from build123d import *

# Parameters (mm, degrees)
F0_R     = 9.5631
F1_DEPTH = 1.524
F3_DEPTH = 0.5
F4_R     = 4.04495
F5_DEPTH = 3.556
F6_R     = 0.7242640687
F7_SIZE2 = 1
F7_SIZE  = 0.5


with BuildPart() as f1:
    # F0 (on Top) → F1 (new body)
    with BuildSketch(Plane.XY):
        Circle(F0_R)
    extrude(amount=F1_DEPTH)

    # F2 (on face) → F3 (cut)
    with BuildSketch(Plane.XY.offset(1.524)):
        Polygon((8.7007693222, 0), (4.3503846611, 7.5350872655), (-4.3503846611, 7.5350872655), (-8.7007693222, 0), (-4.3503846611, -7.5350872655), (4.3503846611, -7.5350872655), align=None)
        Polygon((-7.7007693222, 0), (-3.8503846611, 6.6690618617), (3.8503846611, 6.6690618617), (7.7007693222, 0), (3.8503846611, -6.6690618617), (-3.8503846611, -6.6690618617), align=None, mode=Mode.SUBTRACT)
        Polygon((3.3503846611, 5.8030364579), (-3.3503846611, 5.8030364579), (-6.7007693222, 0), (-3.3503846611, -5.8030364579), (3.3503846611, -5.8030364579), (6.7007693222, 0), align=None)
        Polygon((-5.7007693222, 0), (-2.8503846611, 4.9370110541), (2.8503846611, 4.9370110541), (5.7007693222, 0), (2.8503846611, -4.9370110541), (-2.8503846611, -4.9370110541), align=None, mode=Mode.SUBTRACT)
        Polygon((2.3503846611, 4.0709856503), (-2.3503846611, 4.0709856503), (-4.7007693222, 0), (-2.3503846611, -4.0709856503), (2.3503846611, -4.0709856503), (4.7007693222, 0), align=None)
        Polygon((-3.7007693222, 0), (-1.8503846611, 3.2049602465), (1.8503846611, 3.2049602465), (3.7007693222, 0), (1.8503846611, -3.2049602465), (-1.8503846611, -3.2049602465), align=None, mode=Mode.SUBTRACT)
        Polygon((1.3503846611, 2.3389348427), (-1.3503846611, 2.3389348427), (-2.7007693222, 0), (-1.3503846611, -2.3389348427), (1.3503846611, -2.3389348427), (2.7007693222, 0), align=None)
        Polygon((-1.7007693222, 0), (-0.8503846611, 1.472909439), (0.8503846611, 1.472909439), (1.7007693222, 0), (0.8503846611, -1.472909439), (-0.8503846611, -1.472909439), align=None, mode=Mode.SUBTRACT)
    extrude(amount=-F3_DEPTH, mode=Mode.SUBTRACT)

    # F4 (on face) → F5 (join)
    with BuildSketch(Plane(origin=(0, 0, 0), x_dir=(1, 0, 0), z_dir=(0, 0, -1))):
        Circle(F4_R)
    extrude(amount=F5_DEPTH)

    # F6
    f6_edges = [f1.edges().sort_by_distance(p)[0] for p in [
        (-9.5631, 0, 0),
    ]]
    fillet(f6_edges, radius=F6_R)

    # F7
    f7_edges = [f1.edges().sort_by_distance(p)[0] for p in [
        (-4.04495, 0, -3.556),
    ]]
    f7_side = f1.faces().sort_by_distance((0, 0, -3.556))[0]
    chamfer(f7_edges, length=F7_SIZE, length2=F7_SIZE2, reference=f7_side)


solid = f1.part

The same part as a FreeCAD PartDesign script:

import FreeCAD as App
import Part
import Sketcher

V = App.Vector
Q = App.Units.Quantity


def edges_at(feature, points):
    """Names of the edges that pass closest to the given points."""
    edges = feature.Shape.Edges
    near = lambda p: min(range(len(edges)), key=lambda i: edges[i].distToShape(Part.Vertex(*p))[0])
    return sorted({f"Edge{near(p) + 1}" for p in points})


def add_polygon(sketch, points):
    """Adds a closed chain of lines whose ends are joined by coincident constraints."""
    first, n = sketch.GeometryCount, len(points)
    for a, b in zip(points, points[1:] + points[:1]):
        sketch.addGeometry(Part.LineSegment(App.Vector(*a, 0), App.Vector(*b, 0)), False)
    for i in range(n):
        sketch.addConstraint(Sketcher.Constraint("Coincident", first + i, 2, first + (i + 1) % n, 1))

doc = App.newDocument("Part")
body = doc.addObject("PartDesign::Body", "Body")

# Sketch on XY plane
sketch1 = doc.addObject("Sketcher::SketchObject", "Sketch")
body.addObject(sketch1)
sketch1.AttachmentSupport = (doc.XY_Plane, [""])
sketch1.MapMode = "FlatFace"
sketch1.addGeometry(Part.Circle(V(0, 0, 0), V(0, 0, 1), 10), False)
sketch1.addConstraint([
    Sketcher.Constraint("Coincident", 0, 3, -1, 1),
    Sketcher.Constraint("Diameter", 0, Q("0.753 in")),
])
pad1 = doc.addObject("PartDesign::Pad", "Pad")
body.addObject(pad1)
pad1.Profile = sketch1
pad1.Length = Q("0.06 in")

# Sketch on XY plane
sketch2 = doc.addObject("Sketcher::SketchObject", "Sketch001")
body.addObject(sketch2)
sketch2.AttachmentSupport = (doc.XY_Plane, [""])
sketch2.MapMode = "FlatFace"
sketch2.AttachmentOffset = App.Placement(V(0, 0, 0.06 * 25.4), App.Rotation())
add_polygon(sketch2, [(8.7, 0), (4.4, 7.5), (-4.4, 7.5), (-8.7, 0), (-4.4, -7.5), (4.4, -7.5)])  # lines 0-5
add_polygon(sketch2, [(-3.9, -6.7), (-7.7, 0), (-3.9, 6.7), (3.9, 6.7), (7.7, 0), (3.9, -6.7)])  # lines 6-11
add_polygon(sketch2, [(3.4, 5.8), (-3.4, 5.8), (-6.7, 0), (-3.4, -5.8), (3.4, -5.8), (6.7, 0)])  # lines 12-17
add_polygon(sketch2, [(-2.9, -4.9), (-5.7, 0), (-2.9, 4.9), (2.9, 4.9), (5.7, 0), (2.9, -4.9)])  # lines 18-23
add_polygon(sketch2, [(2.4, 4.1), (-2.4, 4.1), (-4.7, 0), (-2.4, -4.1), (2.4, -4.1), (4.7, 0)])  # lines 24-29
add_polygon(sketch2, [(-1.9, -3.2), (-3.7, 0), (-1.9, 3.2), (1.9, 3.2), (3.7, 0), (1.9, -3.2)])  # lines 30-35
add_polygon(sketch2, [(1.4, 2.3), (-1.4, 2.3), (-2.7, 0), (-1.4, -2.3), (1.4, -2.3), (2.7, 0)])  # lines 36-41
add_polygon(sketch2, [(-0.9, -1.5), (-1.7, 0), (-0.9, 1.5), (0.9, 1.5), (1.7, 0), (0.9, -1.5)])  # lines 42-47
sketch2.addConstraint([
    Sketcher.Constraint("Horizontal", 1),
    Sketcher.Constraint("Horizontal", 4),
    Sketcher.Constraint("Horizontal", 8),
    Sketcher.Constraint("Horizontal", 11),
    Sketcher.Constraint("Horizontal", 12),
    Sketcher.Constraint("Horizontal", 15),
    Sketcher.Constraint("Horizontal", 20),
    Sketcher.Constraint("Horizontal", 23),
    Sketcher.Constraint("Horizontal", 24),
    Sketcher.Constraint("Horizontal", 27),
    Sketcher.Constraint("Horizontal", 32),
    Sketcher.Constraint("Horizontal", 35),
    Sketcher.Constraint("Horizontal", 36),
    Sketcher.Constraint("Horizontal", 39),
    Sketcher.Constraint("Horizontal", 44),
    Sketcher.Constraint("Horizontal", 47),
    Sketcher.Constraint("Symmetric", 0, 2, 3, 2, -1, 1),
    Sketcher.Constraint("Symmetric", 2, 2, 5, 2, -1, 1),
    Sketcher.Constraint("Symmetric", 6, 2, 9, 2, -1, 1),
    Sketcher.Constraint("Symmetric", 7, 2, 10, 2, -1, 1),
    Sketcher.Constraint("Symmetric", 12, 2, 15, 2, -1, 1),
    Sketcher.Constraint("Symmetric", 13, 2, 16, 2, -1, 1),
    Sketcher.Constraint("Symmetric", 18, 2, 21, 2, -1, 1),
    Sketcher.Constraint("Symmetric", 19, 2, 22, 2, -1, 1),
    Sketcher.Constraint("Symmetric", 24, 2, 27, 2, -1, 1),
    Sketcher.Constraint("Symmetric", 25, 2, 28, 2, -1, 1),
    Sketcher.Constraint("Symmetric", 30, 2, 33, 2, -1, 1),
    Sketcher.Constraint("Symmetric", 31, 2, 34, 2, -1, 1),
    Sketcher.Constraint("Symmetric", 36, 2, 39, 2, -1, 1),
    Sketcher.Constraint("Symmetric", 37, 2, 40, 2, -1, 1),
    Sketcher.Constraint("Symmetric", 42, 2, 45, 2, -1, 1),
    Sketcher.Constraint("Symmetric", 43, 2, 46, 2, -1, 1),
    Sketcher.Constraint("PointOnObject", 2, 2, -1),
    Sketcher.Constraint("PointOnObject", 6, 2, -1),
    Sketcher.Constraint("PointOnObject", 13, 2, -1),
    Sketcher.Constraint("PointOnObject", 18, 2, -1),
    Sketcher.Constraint("PointOnObject", 25, 2, -1),
    Sketcher.Constraint("PointOnObject", 30, 2, -1),
    Sketcher.Constraint("PointOnObject", 37, 2, -1),
    Sketcher.Constraint("PointOnObject", 42, 2, -1),
    Sketcher.Constraint("Parallel", 2, 5),
    Sketcher.Constraint("Parallel", 3, 6),
    Sketcher.Constraint("Parallel", 5, 7),
    Sketcher.Constraint("Parallel", 6, 9),
    Sketcher.Constraint("Parallel", 10, 13),
    Sketcher.Constraint("Parallel", 9, 14),
    Sketcher.Constraint("Parallel", 14, 17),
    Sketcher.Constraint("Parallel", 17, 18),
    Sketcher.Constraint("Parallel", 16, 19),
    Sketcher.Constraint("Parallel", 18, 21),
    Sketcher.Constraint("Parallel", 22, 25),
    Sketcher.Constraint("Parallel", 21, 26),
    Sketcher.Constraint("Parallel", 26, 29),
    Sketcher.Constraint("Parallel", 29, 30),
    Sketcher.Constraint("Parallel", 28, 31),
    Sketcher.Constraint("Parallel", 30, 33),
    Sketcher.Constraint("Parallel", 34, 37),
    Sketcher.Constraint("Parallel", 33, 38),
    Sketcher.Constraint("Parallel", 38, 41),
    Sketcher.Constraint("Parallel", 41, 42),
    Sketcher.Constraint("Parallel", 40, 43),
    Sketcher.Constraint("Parallel", 42, 45),
    Sketcher.Constraint("Vertical", 1, 2, 3, 2),
    Sketcher.Constraint("Angle", 0, Q("120 deg")),
    Sketcher.Constraint("DistanceX", 2, 2, 5, 2, Q("0.6850999 in")),
    Sketcher.Constraint("DistanceX", 1, 2, 1, 1, 8.700769),
    Sketcher.Constraint("DistanceX", 8, 1, 8, 2, 7.700769),
    Sketcher.Constraint("DistanceX", 12, 2, 12, 1, 6.700769),
    Sketcher.Constraint("DistanceX", 20, 1, 20, 2, 5.700769),
    Sketcher.Constraint("DistanceX", 24, 2, 24, 1, 4.700769),
    Sketcher.Constraint("DistanceX", 32, 1, 32, 2, 3.700769),
    Sketcher.Constraint("DistanceX", 36, 2, 36, 1, 2.700769),
    Sketcher.Constraint("DistanceX", 44, 1, 44, 2, 1.700769),
    Sketcher.Constraint("DistanceX", 2, 2, 6, 2, 1.0),
    Sketcher.Constraint("DistanceX", 6, 2, 13, 2, 1.0),
    Sketcher.Constraint("DistanceX", 13, 2, 18, 2, 1.0),
    Sketcher.Constraint("DistanceY", 24, 2, 1, 2, 3.464102),
    Sketcher.Constraint("DistanceX", 25, 2, 30, 2, 1.0),
    Sketcher.Constraint("DistanceX", 30, 2, 37, 2, 1.0),
    Sketcher.Constraint("DistanceX", 37, 2, 42, 2, 1.0),
])
pocket1 = doc.addObject("PartDesign::Pocket", "Pocket")
body.addObject(pocket1)
pocket1.Profile = sketch2
pocket1.Length = 0.5

# Sketch on XY plane
sketch3 = doc.addObject("Sketcher::SketchObject", "Sketch002")
body.addObject(sketch3)
sketch3.AttachmentSupport = (doc.XY_Plane, [""])
sketch3.MapMode = "FlatFace"
sketch3.addGeometry(Part.Circle(V(0, 0, 0), V(0, 0, 1), 4), False)
sketch3.addConstraint([
    Sketcher.Constraint("Coincident", 0, 3, -1, 1),
    Sketcher.Constraint("Diameter", 0, Q("0.3185 in")),
])
pad2 = doc.addObject("PartDesign::Pad", "Pad001")
body.addObject(pad2)
pad2.Profile = sketch3
pad2.Length = Q("0.14 in")
pad2.Reversed = True
doc.recompute()

fillet = doc.addObject("PartDesign::Fillet", "Fillet")
body.addObject(fillet)
fillet.Base = (pad2, edges_at(pad2, [(-9.563, 0, 0)]))
fillet.Radius = 0.724264
doc.recompute()

chamfer = doc.addObject("PartDesign::Chamfer", "Chamfer")
body.addObject(chamfer)
chamfer.Base = (fillet, edges_at(fillet, [(-4.045, 0, -3.556)]))
chamfer.ChamferType = "Two distances"
chamfer.Size = 0.5
chamfer.Size2 = 1
chamfer.FlipDirection = True

doc.recompute()
